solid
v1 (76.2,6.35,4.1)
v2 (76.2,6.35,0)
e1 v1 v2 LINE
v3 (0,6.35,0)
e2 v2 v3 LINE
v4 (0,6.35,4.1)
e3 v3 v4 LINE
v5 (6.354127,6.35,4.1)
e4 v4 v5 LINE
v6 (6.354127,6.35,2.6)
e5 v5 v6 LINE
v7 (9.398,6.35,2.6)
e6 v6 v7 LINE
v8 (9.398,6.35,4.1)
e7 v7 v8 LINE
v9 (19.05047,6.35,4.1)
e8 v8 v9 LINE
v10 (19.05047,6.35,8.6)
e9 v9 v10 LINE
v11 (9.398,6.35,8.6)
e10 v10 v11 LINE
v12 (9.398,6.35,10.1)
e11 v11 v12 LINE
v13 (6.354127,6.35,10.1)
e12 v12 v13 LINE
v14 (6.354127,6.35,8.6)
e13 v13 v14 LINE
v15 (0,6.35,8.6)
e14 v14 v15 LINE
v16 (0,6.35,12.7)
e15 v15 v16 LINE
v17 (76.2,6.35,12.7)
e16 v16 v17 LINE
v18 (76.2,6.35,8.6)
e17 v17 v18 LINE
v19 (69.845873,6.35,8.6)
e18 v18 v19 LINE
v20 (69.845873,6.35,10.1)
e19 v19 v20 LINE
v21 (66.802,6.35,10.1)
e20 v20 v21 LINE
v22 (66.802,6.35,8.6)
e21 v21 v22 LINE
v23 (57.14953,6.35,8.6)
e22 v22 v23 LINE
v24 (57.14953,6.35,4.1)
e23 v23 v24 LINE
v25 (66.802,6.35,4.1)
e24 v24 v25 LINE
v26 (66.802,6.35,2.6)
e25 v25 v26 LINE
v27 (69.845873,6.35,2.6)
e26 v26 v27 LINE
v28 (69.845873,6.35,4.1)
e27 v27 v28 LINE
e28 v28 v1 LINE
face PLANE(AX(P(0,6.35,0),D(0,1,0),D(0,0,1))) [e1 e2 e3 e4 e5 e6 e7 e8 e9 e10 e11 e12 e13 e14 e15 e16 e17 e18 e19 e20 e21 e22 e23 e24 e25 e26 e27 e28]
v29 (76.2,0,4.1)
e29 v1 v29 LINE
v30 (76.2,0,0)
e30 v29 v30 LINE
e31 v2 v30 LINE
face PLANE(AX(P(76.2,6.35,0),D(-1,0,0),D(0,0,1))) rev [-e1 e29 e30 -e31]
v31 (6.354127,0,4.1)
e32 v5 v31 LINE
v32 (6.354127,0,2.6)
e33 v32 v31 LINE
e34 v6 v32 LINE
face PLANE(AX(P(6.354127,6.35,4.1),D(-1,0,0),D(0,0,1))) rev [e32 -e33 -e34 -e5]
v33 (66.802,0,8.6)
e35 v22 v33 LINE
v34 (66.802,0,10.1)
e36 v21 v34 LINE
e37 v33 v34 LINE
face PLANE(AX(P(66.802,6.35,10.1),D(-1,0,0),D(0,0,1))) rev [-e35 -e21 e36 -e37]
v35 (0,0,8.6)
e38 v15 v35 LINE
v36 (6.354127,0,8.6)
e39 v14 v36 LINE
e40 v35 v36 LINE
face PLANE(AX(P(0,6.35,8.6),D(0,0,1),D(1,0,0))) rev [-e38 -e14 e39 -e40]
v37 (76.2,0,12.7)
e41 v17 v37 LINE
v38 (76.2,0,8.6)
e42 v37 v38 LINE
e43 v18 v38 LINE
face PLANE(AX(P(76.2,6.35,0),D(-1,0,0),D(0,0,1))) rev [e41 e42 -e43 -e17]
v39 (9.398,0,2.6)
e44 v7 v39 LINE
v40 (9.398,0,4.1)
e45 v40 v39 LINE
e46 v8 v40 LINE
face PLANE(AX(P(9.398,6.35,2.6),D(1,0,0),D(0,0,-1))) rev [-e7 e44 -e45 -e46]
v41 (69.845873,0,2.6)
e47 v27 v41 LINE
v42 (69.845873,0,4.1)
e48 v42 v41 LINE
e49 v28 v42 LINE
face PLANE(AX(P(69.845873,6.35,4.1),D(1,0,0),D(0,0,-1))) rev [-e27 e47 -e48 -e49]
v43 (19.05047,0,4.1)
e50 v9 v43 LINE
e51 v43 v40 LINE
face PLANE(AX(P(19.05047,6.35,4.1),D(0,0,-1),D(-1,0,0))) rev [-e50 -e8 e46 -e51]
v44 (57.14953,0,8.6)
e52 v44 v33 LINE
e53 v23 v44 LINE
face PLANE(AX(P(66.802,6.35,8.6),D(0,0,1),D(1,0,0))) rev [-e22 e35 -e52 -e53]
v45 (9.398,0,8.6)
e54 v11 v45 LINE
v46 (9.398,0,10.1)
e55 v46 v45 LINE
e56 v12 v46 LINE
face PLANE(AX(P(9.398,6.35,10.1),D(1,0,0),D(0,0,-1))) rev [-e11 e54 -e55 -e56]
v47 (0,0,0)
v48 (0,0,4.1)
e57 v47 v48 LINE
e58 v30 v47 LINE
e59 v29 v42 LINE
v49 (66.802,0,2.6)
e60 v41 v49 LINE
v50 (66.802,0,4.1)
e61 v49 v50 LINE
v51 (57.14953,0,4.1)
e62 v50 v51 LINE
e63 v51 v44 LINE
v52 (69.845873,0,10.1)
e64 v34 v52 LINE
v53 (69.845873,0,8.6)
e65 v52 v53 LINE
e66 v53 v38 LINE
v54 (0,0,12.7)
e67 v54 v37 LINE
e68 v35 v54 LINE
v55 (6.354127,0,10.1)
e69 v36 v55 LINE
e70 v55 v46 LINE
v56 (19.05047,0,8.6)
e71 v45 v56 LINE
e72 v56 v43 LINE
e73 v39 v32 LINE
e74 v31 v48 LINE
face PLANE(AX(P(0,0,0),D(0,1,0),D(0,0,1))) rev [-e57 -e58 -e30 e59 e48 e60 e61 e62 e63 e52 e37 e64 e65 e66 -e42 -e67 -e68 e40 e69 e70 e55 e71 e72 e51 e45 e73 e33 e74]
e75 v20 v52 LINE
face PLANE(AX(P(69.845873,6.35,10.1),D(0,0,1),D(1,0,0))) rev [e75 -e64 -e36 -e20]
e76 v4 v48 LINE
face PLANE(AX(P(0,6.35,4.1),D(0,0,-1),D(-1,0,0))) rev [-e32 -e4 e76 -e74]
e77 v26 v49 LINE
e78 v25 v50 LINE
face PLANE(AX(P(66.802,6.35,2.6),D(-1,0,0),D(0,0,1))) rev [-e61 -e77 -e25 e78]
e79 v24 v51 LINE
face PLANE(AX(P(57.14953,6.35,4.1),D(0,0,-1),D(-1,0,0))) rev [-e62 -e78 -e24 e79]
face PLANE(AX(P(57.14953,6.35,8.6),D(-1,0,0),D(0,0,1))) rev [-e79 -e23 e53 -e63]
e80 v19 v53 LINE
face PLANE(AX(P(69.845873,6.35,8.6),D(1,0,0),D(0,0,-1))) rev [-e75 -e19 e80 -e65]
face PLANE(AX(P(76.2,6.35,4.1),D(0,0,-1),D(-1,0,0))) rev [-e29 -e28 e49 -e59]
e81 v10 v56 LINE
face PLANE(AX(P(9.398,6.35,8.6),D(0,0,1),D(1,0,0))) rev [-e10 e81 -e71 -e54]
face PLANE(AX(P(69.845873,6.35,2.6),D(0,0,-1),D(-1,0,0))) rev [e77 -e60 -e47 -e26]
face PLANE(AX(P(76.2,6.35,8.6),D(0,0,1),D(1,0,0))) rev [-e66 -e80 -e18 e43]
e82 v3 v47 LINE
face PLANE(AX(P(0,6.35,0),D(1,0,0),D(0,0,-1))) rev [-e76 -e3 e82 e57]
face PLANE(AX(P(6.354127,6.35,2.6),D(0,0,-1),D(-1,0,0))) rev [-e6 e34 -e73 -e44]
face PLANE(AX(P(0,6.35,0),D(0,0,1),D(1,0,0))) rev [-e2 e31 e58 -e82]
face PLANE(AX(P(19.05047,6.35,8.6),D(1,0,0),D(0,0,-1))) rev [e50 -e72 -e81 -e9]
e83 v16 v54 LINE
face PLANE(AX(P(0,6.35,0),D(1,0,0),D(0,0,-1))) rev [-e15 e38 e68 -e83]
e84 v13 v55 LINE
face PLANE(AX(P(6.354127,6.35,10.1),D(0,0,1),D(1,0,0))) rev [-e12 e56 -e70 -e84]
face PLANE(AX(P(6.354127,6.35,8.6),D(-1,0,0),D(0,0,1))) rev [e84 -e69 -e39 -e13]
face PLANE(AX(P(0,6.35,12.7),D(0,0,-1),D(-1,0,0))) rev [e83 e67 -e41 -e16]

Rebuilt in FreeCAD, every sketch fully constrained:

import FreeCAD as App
import Part
import Sketcher
Q = App.Units.Quantity


def add_polygon(sketch, points):
    """Adds a closed chain of lines whose ends are joined by coincident constraints."""
    first, n = sketch.GeometryCount, len(points)
    for a, b in zip(points, points[1:] + points[:1]):
        sketch.addGeometry(Part.LineSegment(App.Vector(*a, 0), App.Vector(*b, 0)), False)
    for i in range(n):
        sketch.addConstraint(Sketcher.Constraint("Coincident", first + i, 2, first + (i + 1) % n, 1))

doc = App.newDocument("Part")
params = doc.addObject("Spreadsheet::Sheet", "Params")
for row, (alias, value) in enumerate([
    ("sketch1_width", "76.2 mm"),
    ("sketch1_height", "12.7 mm"),
    ("pad1_length", "6.35 mm"),
    ("sketch2_height", "4.5 mm"),
    ("sketch2_height2", "1.5 mm"),
], start=1):
    params.set(f"A{row}", alias)
    params.set(f"B{row}", "=" + value)
    params.setAlias(f"B{row}", alias)

body = doc.addObject("PartDesign::Body", "Body")

# Sketch on XZ plane
sketch1 = doc.addObject("Sketcher::SketchObject", "Sketch")
body.addObject(sketch1)
sketch1.AttachmentSupport = (doc.XZ_Plane, [""])
sketch1.MapMode = "FlatFace"
add_polygon(sketch1, [(0, 0), (0, 13), (76, 13), (76, 0)])  # lines 0-3
sketch1.addConstraint(Sketcher.Constraint("Vertical", 0))
sketch1.addConstraint(Sketcher.Constraint("Horizontal", 1))
sketch1.addConstraint(Sketcher.Constraint("Vertical", 2))
sketch1.addConstraint(Sketcher.Constraint("Horizontal", 3))
sketch1.addConstraint(Sketcher.Constraint("Coincident", 3, 2, -1, 1))
sketch1.addConstraint(Sketcher.Constraint("DistanceX", 1, 1, 1, 2, Q("76.2 mm")))
sketch1.addConstraint(Sketcher.Constraint("DistanceY", 0, 1, 0, 2, Q("12.7 mm")))
sketch1.setExpression("Constraints[9]", "Params.sketch1_width")
sketch1.setExpression("Constraints[10]", "Params.sketch1_height")
pad1 = doc.addObject("PartDesign::Pad", "Pad")
body.addObject(pad1)
pad1.Profile = sketch1
pad1.setExpression("Length", "Params.pad1_length")
pad1.Reversed = True

# Sketch on XZ plane
sketch2 = doc.addObject("Sketcher::SketchObject", "Sketch001")
body.addObject(sketch2)
sketch2.AttachmentSupport = (doc.XZ_Plane, [""])
sketch2.MapMode = "FlatFace"
add_polygon(sketch2, [(76.2, 4.1), (76.2, 8.6), (69.8, 8.6), (69.8, 10.1), (66.8, 10.1), (66.8, 8.6), (57.1, 8.6), (57.1, 4.1), (66.8, 4.1), (66.8, 2.6), (69.8, 2.6), (69.8, 4.1)])  # lines 0-11
add_polygon(sketch2, [(9.4, 4.1), (19.1, 4.1), (19.1, 8.6), (9.4, 8.6), (9.4, 10.1), (6.4, 10.1), (6.4, 8.6), (0, 8.6), (0, 4.1), (6.4, 4.1), (6.4, 2.6), (9.4, 2.6)])  # lines 12-23
sketch2.addConstraint(Sketcher.Constraint("Vertical", 0))
sketch2.addConstraint(Sketcher.Constraint("Horizontal", 1))
sketch2.addConstraint(Sketcher.Constraint("Vertical", 2))
sketch2.addConstraint(Sketcher.Constraint("Horizontal", 3))
sketch2.addConstraint(Sketcher.Constraint("Vertical", 4))
sketch2.addConstraint(Sketcher.Constraint("Horizontal", 5))
sketch2.addConstraint(Sketcher.Constraint("Vertical", 6))
sketch2.addConstraint(Sketcher.Constraint("Horizontal", 7))
sketch2.addConstraint(Sketcher.Constraint("Vertical", 8))
sketch2.addConstraint(Sketcher.Constraint("Horizontal", 9))
sketch2.addConstraint(Sketcher.Constraint("Vertical", 10))
sketch2.addConstraint(Sketcher.Constraint("Horizontal", 11))
sketch2.addConstraint(Sketcher.Constraint("Horizontal", 12))
sketch2.addConstraint(Sketcher.Constraint("Vertical", 13))
sketch2.addConstraint(Sketcher.Constraint("Horizontal", 14))
sketch2.addConstraint(Sketcher.Constraint("Vertical", 15))
sketch2.addConstraint(Sketcher.Constraint("Horizontal", 16))
sketch2.addConstraint(Sketcher.Constraint("Vertical", 17))
sketch2.addConstraint(Sketcher.Constraint("Horizontal", 18))
sketch2.addConstraint(Sketcher.Constraint("Vertical", 19))
sketch2.addConstraint(Sketcher.Constraint("Horizontal", 20))
sketch2.addConstraint(Sketcher.Constraint("Vertical", 21))
sketch2.addConstraint(Sketcher.Constraint("Horizontal", 22))
sketch2.addConstraint(Sketcher.Constraint("Vertical", 23))
sketch2.addConstraint(Sketcher.Constraint("PointOnObject", 18, 2, -2))
sketch2.addConstraint(Sketcher.Constraint("Horizontal", 1, 2, 4, 2))
sketch2.addConstraint(Sketcher.Constraint("Horizontal", 7, 2, 10, 2))
sketch2.addConstraint(Sketcher.Constraint("Horizontal", 11, 2, 12, 2))
sketch2.addConstraint(Sketcher.Constraint("Horizontal", 5, 2, 13, 2))
sketch2.addConstraint(Sketcher.Constraint("Horizontal", 3, 2, 15, 2))
sketch2.addConstraint(Sketcher.Constraint("Horizontal", 14, 2, 17, 2))
sketch2.addConstraint(Sketcher.Constraint("Horizontal", 12, 2, 19, 2))
sketch2.addConstraint(Sketcher.Constraint("Horizontal", 9, 2, 21, 2))
sketch2.addConstraint(Sketcher.Constraint("Vertical", 4, 2, 7, 2))
sketch2.addConstraint(Sketcher.Constraint("Vertical", 2, 2, 9, 2))
sketch2.addConstraint(Sketcher.Constraint("Vertical", 17, 2, 20, 2))
sketch2.addConstraint(Sketcher.Constraint("Vertical", 15, 2, 22, 2))
sketch2.addConstraint(Sketcher.Constraint("Equal", 7, 12))
sketch2.addConstraint(Sketcher.Constraint("Equal", 9, 16))
sketch2.addConstraint(Sketcher.Constraint("Equal", 11, 18))
sketch2.addConstraint(Sketcher.Constraint("Equal", 4, 8))
sketch2.addConstraint(Sketcher.Constraint("DistanceY", 0, 1, 0, 2, Q("4.5 mm")))
sketch2.addConstraint(Sketcher.Constraint("DistanceY", 2, 1, 2, 2, Q("1.5 mm")))
sketch2.addConstraint(Sketcher.Constraint("DistanceX", -1, 1, 0, 2, Q("76.2 mm")))
sketch2.addConstraint(Sketcher.Constraint("DistanceY", -1, 1, 0, 2, Q("8.6 mm")))
sketch2.addConstraint(Sketcher.Constraint("DistanceX", -1, 1, 3, 2, Q("66.802 mm")))
sketch2.addConstraint(Sketcher.Constraint("DistanceX", 5, 2, 5, 1, Q("9.65247 mm")))
sketch2.addConstraint(Sketcher.Constraint("DistanceX", 1, 2, 1, 1, Q("6.354127 mm")))
sketch2.setExpression("Constraints[65]", "Params.sketch2_height")
sketch2.setExpression("Constraints[66]", "Params.sketch2_height2")
pocket1 = doc.addObject("PartDesign::Pocket", "Pocket")
body.addObject(pocket1)
pocket1.Profile = sketch2
pocket1.Type = "ThroughAll"
pocket1.Midplane = True

doc.recompute()
